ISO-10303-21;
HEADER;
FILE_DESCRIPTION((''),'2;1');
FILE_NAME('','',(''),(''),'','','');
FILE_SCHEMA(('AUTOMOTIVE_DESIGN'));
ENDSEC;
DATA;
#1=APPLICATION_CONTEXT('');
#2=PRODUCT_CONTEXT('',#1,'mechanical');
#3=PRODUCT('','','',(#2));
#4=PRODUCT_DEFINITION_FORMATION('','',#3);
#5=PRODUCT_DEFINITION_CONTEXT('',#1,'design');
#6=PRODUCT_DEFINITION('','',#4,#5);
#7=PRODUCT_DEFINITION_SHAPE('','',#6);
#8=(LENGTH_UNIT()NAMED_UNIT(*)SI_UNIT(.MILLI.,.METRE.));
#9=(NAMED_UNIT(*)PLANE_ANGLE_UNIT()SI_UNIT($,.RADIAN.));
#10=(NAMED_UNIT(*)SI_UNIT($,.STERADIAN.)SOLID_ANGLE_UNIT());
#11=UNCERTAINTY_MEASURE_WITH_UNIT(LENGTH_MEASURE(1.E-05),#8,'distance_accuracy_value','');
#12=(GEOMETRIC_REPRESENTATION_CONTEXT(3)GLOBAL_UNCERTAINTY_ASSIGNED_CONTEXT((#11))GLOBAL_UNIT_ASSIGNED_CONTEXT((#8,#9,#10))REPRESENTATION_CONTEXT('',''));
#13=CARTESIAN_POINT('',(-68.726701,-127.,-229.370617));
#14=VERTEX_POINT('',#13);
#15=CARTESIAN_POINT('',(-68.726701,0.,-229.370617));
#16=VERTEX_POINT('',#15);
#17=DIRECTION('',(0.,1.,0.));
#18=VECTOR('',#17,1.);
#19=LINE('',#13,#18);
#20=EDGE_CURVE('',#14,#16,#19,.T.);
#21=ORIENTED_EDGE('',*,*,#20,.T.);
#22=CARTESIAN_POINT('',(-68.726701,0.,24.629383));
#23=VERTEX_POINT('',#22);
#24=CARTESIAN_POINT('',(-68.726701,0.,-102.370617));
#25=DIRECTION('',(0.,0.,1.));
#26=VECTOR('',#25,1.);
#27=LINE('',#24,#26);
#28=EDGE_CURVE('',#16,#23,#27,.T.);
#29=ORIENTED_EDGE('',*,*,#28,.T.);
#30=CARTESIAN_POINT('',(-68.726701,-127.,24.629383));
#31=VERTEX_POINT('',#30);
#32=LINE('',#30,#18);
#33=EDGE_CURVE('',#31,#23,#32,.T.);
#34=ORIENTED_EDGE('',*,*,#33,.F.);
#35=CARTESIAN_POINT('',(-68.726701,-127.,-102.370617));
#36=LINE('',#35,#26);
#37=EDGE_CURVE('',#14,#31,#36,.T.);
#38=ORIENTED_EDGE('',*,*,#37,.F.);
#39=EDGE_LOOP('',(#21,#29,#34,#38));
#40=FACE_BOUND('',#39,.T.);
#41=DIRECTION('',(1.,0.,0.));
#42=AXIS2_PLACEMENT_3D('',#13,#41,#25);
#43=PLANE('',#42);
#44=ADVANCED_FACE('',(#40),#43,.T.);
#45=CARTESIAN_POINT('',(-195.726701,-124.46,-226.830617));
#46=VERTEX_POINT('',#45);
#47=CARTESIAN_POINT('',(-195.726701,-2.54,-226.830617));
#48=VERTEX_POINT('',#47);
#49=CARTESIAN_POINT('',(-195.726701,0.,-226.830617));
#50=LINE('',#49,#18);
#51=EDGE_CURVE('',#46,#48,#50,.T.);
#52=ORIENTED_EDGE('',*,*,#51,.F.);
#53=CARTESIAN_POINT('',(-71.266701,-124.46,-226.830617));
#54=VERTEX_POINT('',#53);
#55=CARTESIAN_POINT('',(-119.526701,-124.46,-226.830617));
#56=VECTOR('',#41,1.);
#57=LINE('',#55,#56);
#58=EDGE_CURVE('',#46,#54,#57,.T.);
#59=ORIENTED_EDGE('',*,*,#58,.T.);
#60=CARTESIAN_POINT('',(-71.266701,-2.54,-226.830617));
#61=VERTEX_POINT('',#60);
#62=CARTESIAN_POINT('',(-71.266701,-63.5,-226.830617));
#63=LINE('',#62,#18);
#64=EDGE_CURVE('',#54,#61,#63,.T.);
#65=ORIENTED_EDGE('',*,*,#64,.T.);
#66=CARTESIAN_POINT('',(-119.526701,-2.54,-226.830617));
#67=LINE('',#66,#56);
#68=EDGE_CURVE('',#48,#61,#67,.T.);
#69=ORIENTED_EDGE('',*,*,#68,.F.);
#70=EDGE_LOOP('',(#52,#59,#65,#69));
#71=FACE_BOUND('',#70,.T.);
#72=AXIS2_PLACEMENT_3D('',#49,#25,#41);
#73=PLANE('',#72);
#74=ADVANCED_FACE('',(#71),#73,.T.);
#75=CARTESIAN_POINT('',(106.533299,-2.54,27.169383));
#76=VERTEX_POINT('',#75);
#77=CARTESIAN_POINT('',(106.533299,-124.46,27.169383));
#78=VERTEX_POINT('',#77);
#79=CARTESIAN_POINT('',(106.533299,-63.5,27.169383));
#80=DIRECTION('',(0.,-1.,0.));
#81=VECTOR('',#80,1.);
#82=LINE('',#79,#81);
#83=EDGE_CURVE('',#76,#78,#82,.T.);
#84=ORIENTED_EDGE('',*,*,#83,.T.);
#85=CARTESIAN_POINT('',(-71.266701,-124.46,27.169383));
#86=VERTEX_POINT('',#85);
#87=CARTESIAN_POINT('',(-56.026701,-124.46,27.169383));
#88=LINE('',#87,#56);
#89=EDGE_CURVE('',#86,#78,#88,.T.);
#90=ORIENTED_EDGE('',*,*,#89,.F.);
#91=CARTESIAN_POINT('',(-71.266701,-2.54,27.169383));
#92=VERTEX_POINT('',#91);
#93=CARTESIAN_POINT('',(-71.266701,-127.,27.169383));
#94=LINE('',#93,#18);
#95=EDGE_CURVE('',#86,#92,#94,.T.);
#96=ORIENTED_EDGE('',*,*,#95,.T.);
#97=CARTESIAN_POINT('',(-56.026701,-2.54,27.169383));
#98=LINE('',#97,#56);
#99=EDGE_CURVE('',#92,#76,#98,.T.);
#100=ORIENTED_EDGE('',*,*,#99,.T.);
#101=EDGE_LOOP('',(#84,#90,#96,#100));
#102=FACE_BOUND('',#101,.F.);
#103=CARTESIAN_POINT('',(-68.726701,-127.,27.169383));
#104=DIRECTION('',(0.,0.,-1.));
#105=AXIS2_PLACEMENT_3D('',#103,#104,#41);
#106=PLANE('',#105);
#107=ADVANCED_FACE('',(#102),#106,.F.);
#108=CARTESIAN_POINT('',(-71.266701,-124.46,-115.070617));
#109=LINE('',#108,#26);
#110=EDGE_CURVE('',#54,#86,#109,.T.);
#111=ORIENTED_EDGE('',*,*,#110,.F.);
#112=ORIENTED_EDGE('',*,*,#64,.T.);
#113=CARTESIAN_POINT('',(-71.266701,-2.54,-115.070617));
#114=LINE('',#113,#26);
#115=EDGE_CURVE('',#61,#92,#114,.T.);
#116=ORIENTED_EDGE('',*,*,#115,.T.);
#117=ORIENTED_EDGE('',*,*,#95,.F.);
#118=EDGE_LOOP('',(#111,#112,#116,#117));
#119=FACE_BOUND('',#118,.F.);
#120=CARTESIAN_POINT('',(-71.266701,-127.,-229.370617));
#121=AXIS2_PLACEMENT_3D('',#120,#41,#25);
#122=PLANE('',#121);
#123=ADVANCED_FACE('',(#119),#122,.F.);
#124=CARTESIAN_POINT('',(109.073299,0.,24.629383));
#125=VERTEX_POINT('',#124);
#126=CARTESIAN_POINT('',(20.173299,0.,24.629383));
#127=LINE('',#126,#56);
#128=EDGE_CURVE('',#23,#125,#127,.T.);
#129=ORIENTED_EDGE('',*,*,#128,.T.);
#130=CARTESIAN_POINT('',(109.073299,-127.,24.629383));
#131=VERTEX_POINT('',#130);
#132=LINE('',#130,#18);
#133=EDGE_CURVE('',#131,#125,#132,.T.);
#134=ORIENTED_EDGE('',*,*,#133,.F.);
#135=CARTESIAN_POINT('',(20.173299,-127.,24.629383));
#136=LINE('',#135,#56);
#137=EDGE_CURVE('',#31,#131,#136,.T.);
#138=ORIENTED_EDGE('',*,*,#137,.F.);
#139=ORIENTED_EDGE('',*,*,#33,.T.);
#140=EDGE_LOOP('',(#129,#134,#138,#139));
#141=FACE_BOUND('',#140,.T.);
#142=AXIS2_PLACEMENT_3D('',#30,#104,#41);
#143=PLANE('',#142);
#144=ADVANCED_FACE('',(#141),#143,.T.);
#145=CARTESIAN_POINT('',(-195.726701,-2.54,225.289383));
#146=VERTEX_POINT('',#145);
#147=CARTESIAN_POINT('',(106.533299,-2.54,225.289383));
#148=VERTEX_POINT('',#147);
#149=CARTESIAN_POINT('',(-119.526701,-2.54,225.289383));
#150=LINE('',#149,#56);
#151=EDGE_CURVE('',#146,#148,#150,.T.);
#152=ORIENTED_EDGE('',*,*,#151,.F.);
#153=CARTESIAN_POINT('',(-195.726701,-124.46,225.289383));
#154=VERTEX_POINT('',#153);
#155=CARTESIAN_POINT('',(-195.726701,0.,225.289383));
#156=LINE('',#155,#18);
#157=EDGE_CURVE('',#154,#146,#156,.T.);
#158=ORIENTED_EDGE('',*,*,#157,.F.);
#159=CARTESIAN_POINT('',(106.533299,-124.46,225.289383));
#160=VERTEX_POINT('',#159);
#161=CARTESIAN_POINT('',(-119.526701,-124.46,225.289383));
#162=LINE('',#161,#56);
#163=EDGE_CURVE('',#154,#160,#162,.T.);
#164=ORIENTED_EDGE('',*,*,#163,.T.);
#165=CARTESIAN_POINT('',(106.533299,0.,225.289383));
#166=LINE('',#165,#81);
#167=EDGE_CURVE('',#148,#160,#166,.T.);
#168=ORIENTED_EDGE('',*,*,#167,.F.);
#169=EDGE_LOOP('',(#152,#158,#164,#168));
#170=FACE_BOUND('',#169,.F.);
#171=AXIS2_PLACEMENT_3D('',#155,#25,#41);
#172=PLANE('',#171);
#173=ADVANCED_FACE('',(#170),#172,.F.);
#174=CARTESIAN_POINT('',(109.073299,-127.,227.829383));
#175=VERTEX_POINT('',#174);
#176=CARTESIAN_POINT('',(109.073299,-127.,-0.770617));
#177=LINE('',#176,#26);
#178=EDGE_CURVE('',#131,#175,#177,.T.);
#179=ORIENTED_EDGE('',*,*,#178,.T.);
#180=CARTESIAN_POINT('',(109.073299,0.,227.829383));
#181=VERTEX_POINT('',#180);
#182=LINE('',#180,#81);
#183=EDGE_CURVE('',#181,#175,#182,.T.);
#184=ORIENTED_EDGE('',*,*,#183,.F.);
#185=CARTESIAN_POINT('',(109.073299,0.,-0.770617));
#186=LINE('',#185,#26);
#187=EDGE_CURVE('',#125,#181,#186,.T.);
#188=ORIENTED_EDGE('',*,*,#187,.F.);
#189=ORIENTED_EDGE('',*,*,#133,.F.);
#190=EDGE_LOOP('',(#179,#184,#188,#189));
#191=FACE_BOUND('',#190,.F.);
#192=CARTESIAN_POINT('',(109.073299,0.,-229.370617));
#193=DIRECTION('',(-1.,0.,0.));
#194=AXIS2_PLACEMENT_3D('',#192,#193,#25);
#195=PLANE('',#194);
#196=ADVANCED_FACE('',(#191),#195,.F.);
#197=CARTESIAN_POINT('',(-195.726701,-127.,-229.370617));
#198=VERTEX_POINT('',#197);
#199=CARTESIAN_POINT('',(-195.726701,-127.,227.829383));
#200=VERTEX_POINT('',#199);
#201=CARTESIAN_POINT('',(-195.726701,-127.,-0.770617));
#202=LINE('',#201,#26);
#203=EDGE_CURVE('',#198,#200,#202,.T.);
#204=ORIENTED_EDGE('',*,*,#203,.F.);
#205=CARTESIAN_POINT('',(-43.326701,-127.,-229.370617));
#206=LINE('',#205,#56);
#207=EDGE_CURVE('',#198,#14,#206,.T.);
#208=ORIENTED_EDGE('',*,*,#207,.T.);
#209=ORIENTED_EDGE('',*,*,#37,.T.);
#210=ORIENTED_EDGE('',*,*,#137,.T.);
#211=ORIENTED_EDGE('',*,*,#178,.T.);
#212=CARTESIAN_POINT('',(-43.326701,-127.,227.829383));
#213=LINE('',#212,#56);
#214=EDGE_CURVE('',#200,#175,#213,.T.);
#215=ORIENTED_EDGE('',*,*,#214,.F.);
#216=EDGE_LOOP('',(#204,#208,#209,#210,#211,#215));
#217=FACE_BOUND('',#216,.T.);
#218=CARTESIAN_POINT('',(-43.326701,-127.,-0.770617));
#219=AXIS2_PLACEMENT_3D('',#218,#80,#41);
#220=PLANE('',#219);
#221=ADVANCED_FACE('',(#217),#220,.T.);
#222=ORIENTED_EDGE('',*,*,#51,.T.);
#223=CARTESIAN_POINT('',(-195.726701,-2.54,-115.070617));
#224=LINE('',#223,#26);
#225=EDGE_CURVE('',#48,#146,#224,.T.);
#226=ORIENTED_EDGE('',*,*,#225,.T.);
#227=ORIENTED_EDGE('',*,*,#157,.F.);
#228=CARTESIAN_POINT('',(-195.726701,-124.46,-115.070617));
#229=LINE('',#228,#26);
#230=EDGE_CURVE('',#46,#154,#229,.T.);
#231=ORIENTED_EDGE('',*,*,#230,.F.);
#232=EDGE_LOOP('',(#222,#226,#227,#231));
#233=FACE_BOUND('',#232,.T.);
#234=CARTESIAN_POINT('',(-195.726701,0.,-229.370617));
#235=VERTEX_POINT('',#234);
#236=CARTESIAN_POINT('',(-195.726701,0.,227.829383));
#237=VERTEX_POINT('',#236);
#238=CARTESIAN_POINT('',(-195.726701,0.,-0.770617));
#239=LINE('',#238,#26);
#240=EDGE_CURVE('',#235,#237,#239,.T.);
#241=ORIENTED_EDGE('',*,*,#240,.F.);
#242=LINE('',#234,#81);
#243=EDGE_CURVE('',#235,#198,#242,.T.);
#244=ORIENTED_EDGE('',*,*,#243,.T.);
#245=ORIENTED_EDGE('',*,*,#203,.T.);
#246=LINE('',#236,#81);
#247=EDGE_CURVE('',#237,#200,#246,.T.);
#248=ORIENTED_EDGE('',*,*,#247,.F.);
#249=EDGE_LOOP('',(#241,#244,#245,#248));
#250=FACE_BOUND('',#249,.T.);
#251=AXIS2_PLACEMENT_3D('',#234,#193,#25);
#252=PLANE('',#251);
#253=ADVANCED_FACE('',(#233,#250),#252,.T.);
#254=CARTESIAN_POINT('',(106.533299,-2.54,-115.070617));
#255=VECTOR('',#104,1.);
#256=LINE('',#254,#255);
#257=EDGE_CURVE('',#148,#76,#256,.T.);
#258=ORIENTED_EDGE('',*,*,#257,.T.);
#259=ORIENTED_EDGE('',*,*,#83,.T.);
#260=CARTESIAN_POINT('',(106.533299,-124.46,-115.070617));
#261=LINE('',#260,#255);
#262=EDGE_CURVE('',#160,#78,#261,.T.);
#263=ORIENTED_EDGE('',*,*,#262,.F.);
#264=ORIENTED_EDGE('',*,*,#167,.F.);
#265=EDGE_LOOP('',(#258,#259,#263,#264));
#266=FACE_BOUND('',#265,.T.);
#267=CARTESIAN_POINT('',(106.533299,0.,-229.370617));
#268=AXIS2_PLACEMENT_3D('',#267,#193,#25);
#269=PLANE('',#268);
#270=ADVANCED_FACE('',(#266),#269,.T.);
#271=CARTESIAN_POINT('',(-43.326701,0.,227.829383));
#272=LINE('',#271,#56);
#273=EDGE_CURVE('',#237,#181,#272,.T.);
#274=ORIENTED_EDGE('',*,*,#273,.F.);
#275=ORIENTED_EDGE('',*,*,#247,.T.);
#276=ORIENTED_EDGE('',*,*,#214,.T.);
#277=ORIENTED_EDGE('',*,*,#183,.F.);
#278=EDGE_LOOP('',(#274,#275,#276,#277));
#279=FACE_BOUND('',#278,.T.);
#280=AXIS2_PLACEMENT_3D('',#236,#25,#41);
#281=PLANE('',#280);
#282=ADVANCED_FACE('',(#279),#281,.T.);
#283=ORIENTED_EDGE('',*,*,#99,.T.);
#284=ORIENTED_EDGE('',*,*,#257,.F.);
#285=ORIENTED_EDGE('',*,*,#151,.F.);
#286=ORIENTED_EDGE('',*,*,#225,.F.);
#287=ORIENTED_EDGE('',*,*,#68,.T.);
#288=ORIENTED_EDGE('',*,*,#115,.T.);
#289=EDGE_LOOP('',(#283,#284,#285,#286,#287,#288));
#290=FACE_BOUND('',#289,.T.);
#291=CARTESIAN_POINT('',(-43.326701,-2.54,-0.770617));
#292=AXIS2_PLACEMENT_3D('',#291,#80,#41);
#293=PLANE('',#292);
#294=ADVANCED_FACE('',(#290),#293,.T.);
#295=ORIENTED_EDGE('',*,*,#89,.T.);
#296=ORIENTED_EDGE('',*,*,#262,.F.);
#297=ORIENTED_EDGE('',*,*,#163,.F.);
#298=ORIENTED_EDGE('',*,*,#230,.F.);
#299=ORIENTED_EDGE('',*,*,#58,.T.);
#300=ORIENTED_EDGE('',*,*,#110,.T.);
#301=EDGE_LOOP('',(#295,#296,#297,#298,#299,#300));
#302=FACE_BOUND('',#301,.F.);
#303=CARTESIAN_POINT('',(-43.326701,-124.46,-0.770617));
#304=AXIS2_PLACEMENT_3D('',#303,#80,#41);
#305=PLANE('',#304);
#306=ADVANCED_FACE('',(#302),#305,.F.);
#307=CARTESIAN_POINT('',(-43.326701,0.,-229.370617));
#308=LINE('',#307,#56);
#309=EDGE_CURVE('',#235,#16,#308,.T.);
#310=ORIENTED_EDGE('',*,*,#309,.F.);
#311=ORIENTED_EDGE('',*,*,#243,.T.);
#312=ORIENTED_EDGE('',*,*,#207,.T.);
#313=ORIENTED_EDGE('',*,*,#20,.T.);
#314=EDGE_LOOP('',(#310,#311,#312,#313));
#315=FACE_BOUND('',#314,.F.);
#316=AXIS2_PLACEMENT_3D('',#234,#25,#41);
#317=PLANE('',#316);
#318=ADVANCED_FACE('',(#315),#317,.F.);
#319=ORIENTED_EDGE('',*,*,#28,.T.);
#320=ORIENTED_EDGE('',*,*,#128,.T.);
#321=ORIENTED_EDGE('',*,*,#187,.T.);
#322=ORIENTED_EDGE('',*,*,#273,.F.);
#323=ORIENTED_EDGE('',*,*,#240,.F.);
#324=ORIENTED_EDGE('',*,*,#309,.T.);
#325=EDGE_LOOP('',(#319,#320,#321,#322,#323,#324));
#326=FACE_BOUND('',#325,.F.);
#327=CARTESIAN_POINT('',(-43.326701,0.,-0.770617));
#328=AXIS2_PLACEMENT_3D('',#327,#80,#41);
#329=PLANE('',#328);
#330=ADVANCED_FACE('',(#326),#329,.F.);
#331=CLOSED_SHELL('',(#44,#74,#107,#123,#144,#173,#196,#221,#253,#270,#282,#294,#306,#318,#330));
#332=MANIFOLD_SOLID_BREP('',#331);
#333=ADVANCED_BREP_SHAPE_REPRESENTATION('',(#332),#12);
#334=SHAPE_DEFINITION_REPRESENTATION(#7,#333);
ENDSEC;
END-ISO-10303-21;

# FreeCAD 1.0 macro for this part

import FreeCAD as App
import Part
import Sketcher
from FreeCAD import Vector
Q = App.Units.Quantity


def faces_at(feature, points):
    """Names of the faces that lie closest to the given points."""
    faces = feature.Shape.Faces
    near = lambda p: min(range(len(faces)), key=lambda i: faces[i].distToShape(Part.Vertex(*p))[0])
    return sorted({f"Face{near(p) + 1}" for p in points})


def add_polygon(sketch, points):
    """Adds a closed chain of lines whose ends are joined by coincident constraints."""
    first, n = sketch.GeometryCount, len(points)
    for a, b in zip(points, points[1:] + points[:1]):
        sketch.addGeometry(Part.LineSegment(App.Vector(*a, 0), App.Vector(*b, 0)), False)
    for i in range(n):
        sketch.addConstraint(Sketcher.Constraint("Coincident", first + i, 2, first + (i + 1) % n, 1))

doc = App.newDocument("Part")
body = doc.addObject("PartDesign::Body", "Body")

# Sketch on XZ plane
sketch1 = doc.addObject("Sketcher::SketchObject", "Sketch")
body.addObject(sketch1)
sketch1.AttachmentSupport = (doc.XZ_Plane, [""])
sketch1.MapMode = "FlatFace"
add_polygon(sketch1, [(-195.726701, 227.829383), (-195.726701, -229.370617), (109.073299, -229.370617), (109.073299, 227.829383)])  # lines 0-3
sketch1.addConstraint([
    Sketcher.Constraint("Vertical", 0),
    Sketcher.Constraint("Horizontal", 1),
    Sketcher.Constraint("Vertical", 2),
    Sketcher.Constraint("Horizontal", 3),
    Sketcher.Constraint("DistanceX", 1, 1, 1, 2, Q("12 in")),
    Sketcher.Constraint("DistanceY", 0, 2, 0, 1, Q("18 in")),
    Sketcher.Constraint("DistanceX", 0, 2, -1, 1, 195.726701),
    Sketcher.Constraint("DistanceY", 0, 2, -1, 1, 229.370617),
])
pad1 = doc.addObject("PartDesign::Pad", "Pad")
body.addObject(pad1)
pad1.Profile = sketch1
pad1.Length = Q("5 in")

# Sketch on XZ plane
sketch2 = doc.addObject("Sketcher::SketchObject", "Sketch001")
body.addObject(sketch2)
sketch2.AttachmentSupport = (doc.XZ_Plane, [""])
sketch2.MapMode = "FlatFace"
sketch2.AttachmentOffset = App.Placement(Vector(0, 0, 5 * 25.4), App.Rotation())
add_polygon(sketch2, [(-68.726701, 24.629383), (-68.726701, -229.370617), (109.073299, -229.370617), (109.073299, 24.629383)])  # lines 0-3
sketch2.addConstraint([
    Sketcher.Constraint("Vertical", 0),
    Sketcher.Constraint("Horizontal", 1),
    Sketcher.Constraint("Vertical", 2),
    Sketcher.Constraint("Horizontal", 3),
    Sketcher.Constraint("DistanceX", 1, 1, 1, 2, Q("7 in")),
    Sketcher.Constraint("DistanceY", 0, 2, 0, 1, Q("10 in")),
    Sketcher.Constraint("DistanceX", 0, 2, -1, 1, 68.726701),
    Sketcher.Constraint("DistanceY", 0, 2, -1, 1, 229.370617),
])
pocket1 = doc.addObject("PartDesign::Pocket", "Pocket")
body.addObject(pocket1)
pocket1.Profile = sketch2
pocket1.Length = Q("5 in")
doc.recompute()

thickness = doc.addObject("PartDesign::Thickness", "Thickness")
body.addObject(thickness)
thickness.Base = (pocket1, faces_at(pocket1, [(-195.727, -63.5, -0.771)]))
thickness.Value = Q("0.1 in")
thickness.Reversed = True
thickness.Join = "Intersection"

doc.recompute()
